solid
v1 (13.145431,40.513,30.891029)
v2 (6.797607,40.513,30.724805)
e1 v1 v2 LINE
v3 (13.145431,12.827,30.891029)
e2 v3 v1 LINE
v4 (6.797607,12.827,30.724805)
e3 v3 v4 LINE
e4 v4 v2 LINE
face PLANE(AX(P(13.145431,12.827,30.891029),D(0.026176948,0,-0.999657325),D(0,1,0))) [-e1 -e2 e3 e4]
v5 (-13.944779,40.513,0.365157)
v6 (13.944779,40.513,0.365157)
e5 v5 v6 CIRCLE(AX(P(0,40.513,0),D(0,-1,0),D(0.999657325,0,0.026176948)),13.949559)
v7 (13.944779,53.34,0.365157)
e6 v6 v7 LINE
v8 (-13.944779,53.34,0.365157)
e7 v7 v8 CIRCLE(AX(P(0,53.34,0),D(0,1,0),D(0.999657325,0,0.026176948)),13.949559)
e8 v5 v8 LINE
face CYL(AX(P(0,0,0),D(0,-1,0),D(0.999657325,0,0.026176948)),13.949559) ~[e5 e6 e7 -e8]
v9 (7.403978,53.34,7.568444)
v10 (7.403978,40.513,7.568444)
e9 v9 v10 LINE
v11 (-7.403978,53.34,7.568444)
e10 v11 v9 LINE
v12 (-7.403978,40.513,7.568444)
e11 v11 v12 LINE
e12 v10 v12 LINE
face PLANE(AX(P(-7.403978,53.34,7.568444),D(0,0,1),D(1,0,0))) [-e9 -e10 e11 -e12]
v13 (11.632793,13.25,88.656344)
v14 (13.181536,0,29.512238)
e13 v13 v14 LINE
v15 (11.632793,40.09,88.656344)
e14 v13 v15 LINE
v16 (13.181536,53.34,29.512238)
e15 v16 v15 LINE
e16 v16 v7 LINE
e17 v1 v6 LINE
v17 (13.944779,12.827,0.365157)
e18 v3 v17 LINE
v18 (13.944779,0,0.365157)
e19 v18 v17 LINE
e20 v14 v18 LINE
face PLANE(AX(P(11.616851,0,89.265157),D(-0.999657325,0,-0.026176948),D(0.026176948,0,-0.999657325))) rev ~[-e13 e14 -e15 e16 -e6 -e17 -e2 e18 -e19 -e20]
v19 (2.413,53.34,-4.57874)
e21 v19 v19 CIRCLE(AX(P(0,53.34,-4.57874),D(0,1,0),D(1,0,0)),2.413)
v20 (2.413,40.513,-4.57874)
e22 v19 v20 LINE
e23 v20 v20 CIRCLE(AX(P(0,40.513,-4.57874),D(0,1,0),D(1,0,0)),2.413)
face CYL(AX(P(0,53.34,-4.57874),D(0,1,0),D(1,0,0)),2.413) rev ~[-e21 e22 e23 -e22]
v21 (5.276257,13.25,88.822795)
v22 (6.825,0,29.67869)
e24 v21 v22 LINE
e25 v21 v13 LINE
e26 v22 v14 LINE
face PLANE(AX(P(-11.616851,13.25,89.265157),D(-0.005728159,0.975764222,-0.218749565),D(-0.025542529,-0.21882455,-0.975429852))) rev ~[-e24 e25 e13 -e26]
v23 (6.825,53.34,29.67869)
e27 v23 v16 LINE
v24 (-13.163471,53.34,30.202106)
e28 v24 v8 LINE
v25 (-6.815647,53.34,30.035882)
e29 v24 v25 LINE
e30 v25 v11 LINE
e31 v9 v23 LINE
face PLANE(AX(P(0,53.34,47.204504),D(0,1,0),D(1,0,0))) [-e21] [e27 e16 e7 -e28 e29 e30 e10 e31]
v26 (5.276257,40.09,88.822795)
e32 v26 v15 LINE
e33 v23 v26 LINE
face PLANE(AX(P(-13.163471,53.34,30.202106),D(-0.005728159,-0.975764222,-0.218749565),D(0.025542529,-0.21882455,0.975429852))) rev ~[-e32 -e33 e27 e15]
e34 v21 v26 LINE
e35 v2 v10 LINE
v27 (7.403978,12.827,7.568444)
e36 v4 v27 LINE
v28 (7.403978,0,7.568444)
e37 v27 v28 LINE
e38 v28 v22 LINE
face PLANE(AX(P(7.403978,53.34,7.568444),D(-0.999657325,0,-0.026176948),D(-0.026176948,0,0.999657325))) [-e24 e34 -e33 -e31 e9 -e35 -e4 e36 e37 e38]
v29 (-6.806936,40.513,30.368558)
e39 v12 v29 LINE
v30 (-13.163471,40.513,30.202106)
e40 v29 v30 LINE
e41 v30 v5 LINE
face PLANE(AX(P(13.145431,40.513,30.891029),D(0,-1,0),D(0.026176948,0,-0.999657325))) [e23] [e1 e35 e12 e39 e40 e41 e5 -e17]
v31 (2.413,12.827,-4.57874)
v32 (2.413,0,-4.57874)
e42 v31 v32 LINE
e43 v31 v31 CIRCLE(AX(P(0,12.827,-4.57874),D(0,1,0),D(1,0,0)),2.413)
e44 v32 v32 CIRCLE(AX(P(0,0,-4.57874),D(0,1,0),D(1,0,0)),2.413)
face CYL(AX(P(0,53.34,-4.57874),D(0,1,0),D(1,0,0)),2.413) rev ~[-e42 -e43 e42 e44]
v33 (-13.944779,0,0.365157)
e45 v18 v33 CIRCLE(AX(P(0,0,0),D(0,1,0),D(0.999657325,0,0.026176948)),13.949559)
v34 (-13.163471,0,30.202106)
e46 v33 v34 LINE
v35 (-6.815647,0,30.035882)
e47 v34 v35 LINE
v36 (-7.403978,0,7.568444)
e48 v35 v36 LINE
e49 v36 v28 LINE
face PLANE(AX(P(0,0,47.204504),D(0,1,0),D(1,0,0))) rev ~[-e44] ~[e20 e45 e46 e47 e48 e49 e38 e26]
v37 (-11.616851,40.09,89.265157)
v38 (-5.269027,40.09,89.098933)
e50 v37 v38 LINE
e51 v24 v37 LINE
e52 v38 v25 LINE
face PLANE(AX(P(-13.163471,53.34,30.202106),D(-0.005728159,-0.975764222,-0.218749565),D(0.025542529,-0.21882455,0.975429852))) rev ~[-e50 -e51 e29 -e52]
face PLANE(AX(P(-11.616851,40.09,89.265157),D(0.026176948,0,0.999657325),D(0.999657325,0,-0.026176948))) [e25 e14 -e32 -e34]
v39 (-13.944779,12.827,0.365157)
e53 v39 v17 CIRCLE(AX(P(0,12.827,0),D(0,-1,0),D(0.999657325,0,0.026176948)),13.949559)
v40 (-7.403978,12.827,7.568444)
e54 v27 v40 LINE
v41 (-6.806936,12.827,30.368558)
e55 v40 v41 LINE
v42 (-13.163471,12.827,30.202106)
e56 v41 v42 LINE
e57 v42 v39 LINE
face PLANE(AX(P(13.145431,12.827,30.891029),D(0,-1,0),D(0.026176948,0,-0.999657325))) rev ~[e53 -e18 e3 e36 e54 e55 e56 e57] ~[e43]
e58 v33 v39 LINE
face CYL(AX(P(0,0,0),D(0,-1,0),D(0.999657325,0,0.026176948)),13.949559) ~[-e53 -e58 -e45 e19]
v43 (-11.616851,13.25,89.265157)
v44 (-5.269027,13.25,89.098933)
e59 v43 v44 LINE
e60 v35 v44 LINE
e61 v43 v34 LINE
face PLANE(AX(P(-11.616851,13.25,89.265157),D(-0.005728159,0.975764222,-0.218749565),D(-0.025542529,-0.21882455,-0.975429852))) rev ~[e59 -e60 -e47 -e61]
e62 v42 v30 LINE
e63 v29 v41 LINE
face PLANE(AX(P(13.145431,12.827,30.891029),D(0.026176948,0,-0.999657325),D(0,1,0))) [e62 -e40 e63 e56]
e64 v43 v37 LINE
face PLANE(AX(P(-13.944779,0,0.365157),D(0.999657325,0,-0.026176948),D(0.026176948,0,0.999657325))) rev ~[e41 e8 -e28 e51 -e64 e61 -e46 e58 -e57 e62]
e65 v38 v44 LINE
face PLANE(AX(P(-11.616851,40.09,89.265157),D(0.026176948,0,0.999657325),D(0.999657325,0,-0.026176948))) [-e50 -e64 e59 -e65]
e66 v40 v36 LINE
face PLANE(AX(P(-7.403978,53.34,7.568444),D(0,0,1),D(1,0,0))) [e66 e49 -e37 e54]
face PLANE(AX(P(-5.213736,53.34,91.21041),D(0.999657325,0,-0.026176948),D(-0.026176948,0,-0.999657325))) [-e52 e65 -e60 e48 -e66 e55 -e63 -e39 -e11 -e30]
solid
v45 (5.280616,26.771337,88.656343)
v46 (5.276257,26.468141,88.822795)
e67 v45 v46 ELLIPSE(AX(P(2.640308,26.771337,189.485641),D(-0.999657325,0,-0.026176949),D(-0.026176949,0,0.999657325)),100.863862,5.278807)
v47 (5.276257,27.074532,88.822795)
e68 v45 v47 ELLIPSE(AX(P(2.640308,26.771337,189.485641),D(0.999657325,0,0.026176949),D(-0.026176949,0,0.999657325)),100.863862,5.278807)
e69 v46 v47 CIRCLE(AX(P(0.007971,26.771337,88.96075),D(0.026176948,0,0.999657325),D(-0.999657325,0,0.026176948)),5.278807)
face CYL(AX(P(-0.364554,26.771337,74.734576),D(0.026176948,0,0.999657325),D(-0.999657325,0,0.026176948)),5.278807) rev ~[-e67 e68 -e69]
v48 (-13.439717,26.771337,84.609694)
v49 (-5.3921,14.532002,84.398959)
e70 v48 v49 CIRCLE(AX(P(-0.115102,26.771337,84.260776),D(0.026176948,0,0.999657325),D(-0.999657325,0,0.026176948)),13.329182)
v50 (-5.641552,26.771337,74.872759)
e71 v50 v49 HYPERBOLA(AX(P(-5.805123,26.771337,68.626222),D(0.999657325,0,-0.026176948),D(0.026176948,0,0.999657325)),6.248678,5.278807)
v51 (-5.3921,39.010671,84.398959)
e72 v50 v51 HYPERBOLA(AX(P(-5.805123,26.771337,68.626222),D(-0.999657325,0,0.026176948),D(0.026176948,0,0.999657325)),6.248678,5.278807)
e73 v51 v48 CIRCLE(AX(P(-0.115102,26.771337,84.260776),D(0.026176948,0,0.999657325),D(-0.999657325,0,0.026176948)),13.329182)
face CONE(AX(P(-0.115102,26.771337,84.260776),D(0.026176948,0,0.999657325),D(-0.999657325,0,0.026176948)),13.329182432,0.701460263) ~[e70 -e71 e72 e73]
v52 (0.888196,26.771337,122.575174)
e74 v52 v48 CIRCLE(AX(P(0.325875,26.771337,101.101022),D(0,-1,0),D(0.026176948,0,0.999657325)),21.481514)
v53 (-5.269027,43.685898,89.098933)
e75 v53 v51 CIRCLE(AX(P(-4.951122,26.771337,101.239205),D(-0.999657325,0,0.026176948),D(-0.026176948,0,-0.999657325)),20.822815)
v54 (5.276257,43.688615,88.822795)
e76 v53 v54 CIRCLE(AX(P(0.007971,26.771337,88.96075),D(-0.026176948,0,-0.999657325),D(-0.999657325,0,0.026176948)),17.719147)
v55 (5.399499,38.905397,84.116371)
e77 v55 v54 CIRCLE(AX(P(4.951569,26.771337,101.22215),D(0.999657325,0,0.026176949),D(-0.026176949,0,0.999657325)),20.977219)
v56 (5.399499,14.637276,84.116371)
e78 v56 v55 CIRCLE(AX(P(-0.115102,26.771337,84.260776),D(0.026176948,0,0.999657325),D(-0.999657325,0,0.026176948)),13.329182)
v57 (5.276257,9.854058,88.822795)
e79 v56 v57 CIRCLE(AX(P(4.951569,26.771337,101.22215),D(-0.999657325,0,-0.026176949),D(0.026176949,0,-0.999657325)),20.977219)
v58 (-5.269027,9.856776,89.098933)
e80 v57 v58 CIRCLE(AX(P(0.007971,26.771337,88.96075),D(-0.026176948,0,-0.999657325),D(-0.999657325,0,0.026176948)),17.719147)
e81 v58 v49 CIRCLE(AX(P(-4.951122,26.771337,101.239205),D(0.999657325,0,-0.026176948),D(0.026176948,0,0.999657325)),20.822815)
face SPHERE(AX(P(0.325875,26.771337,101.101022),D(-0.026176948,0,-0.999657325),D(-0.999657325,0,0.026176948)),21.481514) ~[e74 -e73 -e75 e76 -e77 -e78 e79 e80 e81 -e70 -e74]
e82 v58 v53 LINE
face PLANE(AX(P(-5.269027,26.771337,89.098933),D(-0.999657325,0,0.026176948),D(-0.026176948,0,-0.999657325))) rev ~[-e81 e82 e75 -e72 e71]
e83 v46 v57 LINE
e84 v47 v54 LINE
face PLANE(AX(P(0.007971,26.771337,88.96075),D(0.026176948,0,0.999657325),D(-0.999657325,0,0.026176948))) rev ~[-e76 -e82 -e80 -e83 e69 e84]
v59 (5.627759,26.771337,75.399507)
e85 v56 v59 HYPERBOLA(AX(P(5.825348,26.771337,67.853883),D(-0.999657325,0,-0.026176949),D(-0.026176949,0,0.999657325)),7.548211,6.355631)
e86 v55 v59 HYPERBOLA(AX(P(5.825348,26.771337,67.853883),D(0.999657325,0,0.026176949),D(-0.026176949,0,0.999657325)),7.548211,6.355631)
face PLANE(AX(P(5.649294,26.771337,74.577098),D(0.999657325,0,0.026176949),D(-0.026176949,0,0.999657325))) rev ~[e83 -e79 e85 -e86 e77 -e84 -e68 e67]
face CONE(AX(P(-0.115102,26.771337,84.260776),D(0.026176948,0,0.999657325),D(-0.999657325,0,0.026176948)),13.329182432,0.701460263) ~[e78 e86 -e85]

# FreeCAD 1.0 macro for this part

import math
import FreeCAD as App
import Part
import Sketcher
Q = App.Units.Quantity


def add_polygon(sketch, points):
    """Adds a closed chain of lines whose ends are joined by coincident constraints."""
    first, n = sketch.GeometryCount, len(points)
    for a, b in zip(points, points[1:] + points[:1]):
        sketch.addGeometry(Part.LineSegment(App.Vector(*a, 0), App.Vector(*b, 0)), False)
    for i in range(n):
        sketch.addConstraint(Sketcher.Constraint("Coincident", first + i, 2, first + (i + 1) % n, 1))

doc = App.newDocument("Part")
body = doc.addObject("PartDesign::Body", "Body")

# Sketch on XZ plane
sketch1 = body.newObject("Sketcher::SketchObject", "Sketch")
sketch1.AttachmentSupport = (doc.getObject("XZ_Plane"), [""])
sketch1.MapMode = "FlatFace"
sketch1.addGeometry([
    Part.LineSegment(App.Vector(-14, 0, 0), App.Vector(-12, 89, 0)),
    Part.ArcOfCircle(Part.Circle(App.Vector(0, 96, 0), App.Vector(0, 0, 1), 13), math.radians(-30), math.radians(210)),
    Part.LineSegment(App.Vector(12, 89, 0), App.Vector(14, 0, 0)),
    Part.ArcOfCircle(Part.Circle(App.Vector(0, 0, 0), App.Vector(0, 0, 1), 14), math.radians(178), math.radians(362)),
], False)
sketch1.addConstraint([
    Sketcher.Constraint("Coincident", 0, 2, 1, 2),
    Sketcher.Constraint("Coincident", 1, 1, 2, 1),
    Sketcher.Constraint("Tangent", 2, 2, 3, 2),
    Sketcher.Constraint("Tangent", 3, 1, 0, 1),
    Sketcher.Constraint("Coincident", 3, 3, -1, 1),
    Sketcher.Constraint("Symmetric", 0, 2, 1, 1, -2),
    Sketcher.Constraint("Angle", 0, Q("88.5 deg")),
    Sketcher.Constraint("DistanceY", 2, 2, 1, 1, Q("3.5 in")),
    Sketcher.Constraint("Radius", 3, 13.949559),
    Sketcher.Constraint("Radius", 1, 13.422645),
])
pad1 = body.newObject("PartDesign::Pad", "Pad")
pad1.Profile = sketch1
pad1.Length = Q("2.1 in")
pad1.Reversed = True

# Sketch on an angled plane
sketch2 = body.newObject("Sketcher::SketchObject", "Sketch001")
sketch2.Placement = App.Placement(App.Vector(13.944779, 0, 0.365157), App.Rotation(App.Vector(0.026176948, 0, -0.999657325), App.Vector(0, 1, 0), App.Vector(0.999657325, 0, 0.026176948), "ZXY"))
add_polygon(sketch2, [(-31, 41), (-31, 13), (31, 13), (31, 41)])  # lines 0-3
sketch2.addConstraint([
    Sketcher.Constraint("Vertical", 0),
    Sketcher.Constraint("Horizontal", 1),
    Sketcher.Constraint("Vertical", 2),
    Sketcher.Constraint("Horizontal", 3),
    Sketcher.Constraint("DistanceY", 0, 2, 0, 1, Q("1.09 in")),
    Sketcher.Constraint("DistanceY", -1, 1, 0, 2, Q("0.505 in")),
    Sketcher.Constraint("DistanceX", 1, 1, 1, 2, 61.072672),
    Sketcher.Constraint("DistanceX", 0, 2, -1, 1, 30.536336),
])
pocket1 = body.newObject("PartDesign::Pocket", "Pocket")
pocket1.Profile = sketch2
pocket1.Type = "ThroughAll"

# Sketch on XZ plane
sketch3 = body.newObject("Sketcher::SketchObject", "Sketch002")
sketch3.AttachmentSupport = (doc.getObject("XZ_Plane"), [""])
sketch3.MapMode = "FlatFace"
sketch3.AttachmentOffset = App.Placement(App.Vector(0, 0, -2.1 * 25.4), App.Rotation())
add_polygon(sketch3, [(-29, -29), (-29, 124), (29, 124), (29, -29)])  # lines 0-3
sketch3.addGeometry(Part.LineSegment(App.Vector(-12, 89, 0), App.Vector(-14, 0, 0)), False)  # 4
sketch3.addGeometry(Part.ArcOfCircle(Part.Circle(App.Vector(0, 0, 0), App.Vector(0, 0, 1), 14), math.radians(178), math.radians(362)), False)  # 5
sketch3.addGeometry(Part.LineSegment(App.Vector(14, 0, 0), App.Vector(12, 89, 0)), False)  # 6
sketch3.addGeometry(Part.ArcOfCircle(Part.Circle(App.Vector(0, 96, 0), App.Vector(0, 0, 1), 13), math.radians(-30), math.radians(210)), False)  # 7
sketch3.addGeometry(Part.LineSegment(App.Vector(5, 91, 0), App.Vector(7, 8, 0)), False)  # 8
sketch3.addGeometry(Part.LineSegment(App.Vector(7, 8, 0), App.Vector(-7, 8, 0)), False)  # 9
sketch3.addGeometry(Part.LineSegment(App.Vector(-7, 8, 0), App.Vector(-5, 91, 0)), False)  # 10
sketch3.addGeometry(Part.ArcOfCircle(Part.Circle(App.Vector(0, 97, 0), App.Vector(0, 0, 1), 8), math.radians(-49), math.radians(229)), False)  # 11
sketch3.addConstraint([
    Sketcher.Constraint("Tangent", 4, 2, 5, 1),
    Sketcher.Constraint("Tangent", 5, 2, 6, 1),
    Sketcher.Constraint("Coincident", 6, 2, 7, 1),
    Sketcher.Constraint("Coincident", 7, 2, 4, 1),
    Sketcher.Constraint("Coincident", 8, 2, 9, 1),
    Sketcher.Constraint("Coincident", 9, 2, 10, 1),
    Sketcher.Constraint("Coincident", 10, 2, 11, 2),
    Sketcher.Constraint("Coincident", 11, 1, 8, 1),
    Sketcher.Constraint("Vertical", 0),
    Sketcher.Constraint("Horizontal", 1),
    Sketcher.Constraint("Vertical", 2),
    Sketcher.Constraint("Horizontal", 3),
    Sketcher.Constraint("Horizontal", 9),
    Sketcher.Constraint("Coincident", 5, 3, -1, 1),
    Sketcher.Constraint("Symmetric", 6, 2, 7, 2, -2),
    Sketcher.Constraint("Symmetric", 10, 2, 11, 1, -2),
    Sketcher.Constraint("Parallel", 6, 8),
    Sketcher.Constraint("Parallel", 4, 10),
    Sketcher.Constraint("Angle", 4, Q("-91.5 deg")),
    Sketcher.Constraint("DistanceY", 5, 2, 6, 2, Q("3.5 in")),
    Sketcher.Constraint("Radius", 5, 13.949559),
    Sketcher.Constraint("Radius", 11, 8.026281),
    Sketcher.Constraint("DistanceX", 1, 1, 1, 2, 57.352),
    Sketcher.Constraint("DistanceY", 0, 1, 0, 2, 152.814),
    Sketcher.Constraint("Radius", 7, 13.422645),
    Sketcher.Constraint("DistanceX", 0, 2, -1, 1, 28.676),
    Sketcher.Constraint("DistanceY", -1, 1, 0, 2, 124.138),
    Sketcher.Constraint("DistanceX", 8, 2, 5, 2, 6.540801),
    Sketcher.Constraint("Distance", 8, 83.670638),
    Sketcher.Constraint("DistanceY", -1, 1, 10, 2, 91.21041),
])
pocket2 = body.newObject("PartDesign::Pocket", "Pocket001")
pocket2.Profile = sketch3
pocket2.Type = "ThroughAll"
pocket2.Reversed = True

# Sketch on XZ plane
sketch4 = body.newObject("Sketcher::SketchObject", "Sketch003")
sketch4.AttachmentSupport = (doc.getObject("XZ_Plane"), [""])
sketch4.MapMode = "FlatFace"
sketch4.AttachmentOffset = App.Placement(App.Vector(0, 0, -2.1 * 25.4), App.Rotation())
sketch4.addGeometry(Part.Circle(App.Vector(0, -4.6, 0), App.Vector(0, 0, 1), 2.4), False)
sketch4.addConstraint([
    Sketcher.Constraint("PointOnObject", 0, 3, -2),
    Sketcher.Constraint("Diameter", 0, Q("0.19 in")),
    Sketcher.Constraint("DistanceY", 0, 3, -1, 1, 4.57874),
])
pocket3 = body.newObject("PartDesign::Pocket", "Pocket002")
pocket3.Profile = sketch4
pocket3.Type = "ThroughAll"
pocket3.Reversed = True

# Sketch on an angled plane
sketch5 = body.newObject("Sketcher::SketchObject", "Sketch004")
sketch5.Placement = App.Placement(App.Vector(-13.944779, 0, 0.365157), App.Rotation(App.Vector(0.026176948, 0, 0.999657325), App.Vector(0, 1, 0), App.Vector(-0.999657325, 0, 0.026176948), "ZXY"))
add_polygon(sketch5, [(30, 53), (89, 40), (115, 40), (115, 13), (89, 13), (30, 0), (139, 0), (139, 53)])  # lines 0-7
sketch5.addConstraint([
    Sketcher.Constraint("Horizontal", 1),
    Sketcher.Constraint("Vertical", 2),
    Sketcher.Constraint("Horizontal", 3),
    Sketcher.Constraint("Horizontal", 5),
    Sketcher.Constraint("Vertical", 6),
    Sketcher.Constraint("Horizontal", 7),
    Sketcher.Constraint("PointOnObject", 4, 2, -1),
    Sketcher.Constraint("Vertical", 0, 2, 3, 2),
    Sketcher.Constraint("Vertical", 4, 2, 7, 2),
    Sketcher.Constraint("Equal", 0, 4),
    Sketcher.Constraint("DistanceY", 6, 1, 6, 2, Q("2.1 in")),
    Sketcher.Constraint("Angle", 0, Q("-12.640003 deg")),
    Sketcher.Constraint("DistanceY", 2, 2, 2, 1, 26.84),
    Sketcher.Constraint("DistanceX", 1, 1, 1, 2, 26.26622),
    Sketcher.Constraint("DistanceX", 5, 1, 5, 2, 108.85555),
    Sketcher.Constraint("DistanceX", -1, 1, 0, 2, 88.930474),
])
pocket4 = body.newObject("PartDesign::Pocket", "Pocket003")
pocket4.Profile = sketch5
pocket4.Type = "ThroughAll"
pocket4.Midplane = True

# Sketch on XZ plane
sketch6 = body.newObject("Sketcher::SketchObject", "Sketch005")
sketch6.AttachmentSupport = (doc.getObject("XZ_Plane"), [""])
sketch6.MapMode = "FlatFace"
sketch6.AttachmentOffset = App.Placement(App.Vector(0, 0, -40.09), App.Rotation())
add_polygon(sketch6, [(20, 88), (-12, 89), (-20, 89), (-28, 116), (21, 120)])  # lines 0-4
sketch6.addConstraint([
    Sketcher.Constraint("Horizontal", 1),
    Sketcher.Constraint("Angle", 0, Q("178.5 deg")),
    Sketcher.Constraint("DistanceY", 1, 2, 2, 2, 26.954199),
    Sketcher.Constraint("Distance", 3, 49.031631),
    Sketcher.Constraint("Distance", 4, 31.319361),
    Sketcher.Constraint("DistanceX", 1, 2, 1, 1, 8.849003),
    Sketcher.Constraint("DistanceX", 0, 2, -1, 1, 11.616851),
    Sketcher.Constraint("DistanceX", 2, 2, -1, 1, 27.769339),
    Sketcher.Constraint("DistanceX", -1, 1, 4, 2, 19.748471),
    Sketcher.Constraint("DistanceY", -1, 1, 0, 2, 89.265157),
])
pocket5 = body.newObject("PartDesign::Pocket", "Pocket004")
pocket5.Profile = sketch6
pocket5.Length = 100
pocket5.Reversed = True
body2 = doc.addObject("PartDesign::Body", "Body001")

# Sketch on XZ plane
sketch7 = body2.newObject("Sketcher::SketchObject", "Sketch006")
sketch7.AttachmentSupport = (doc.getObject("XZ_Plane001"), [""])
sketch7.MapMode = "FlatFace"
sketch7.AttachmentOffset = App.Placement(App.Vector(0, 0, -26.771337), App.Rotation())
sketch7.addGeometry([
    Part.LineSegment(App.Vector(0, 89, 0), App.Vector(-5, 89, 0)),  # 0
    Part.LineSegment(App.Vector(-5, 89, 0), App.Vector(-6, 75, 0)),  # 1
    Part.LineSegment(App.Vector(-6, 75, 0), App.Vector(-13, 85, 0)),  # 2
    Part.ArcOfCircle(Part.Circle(App.Vector(0, 101, 0), App.Vector(0, 0, 1), 21), math.radians(89), math.radians(230)),  # 3
    Part.LineSegment(App.Vector(1, 123, 0), App.Vector(0, 89, 0)),  # 4
], False)
sketch7.addGeometry(Part.LineSegment(App.Vector(0, 75, 0), App.Vector(1, 123, 0)), True)  # axis
sketch7.addConstraint([
    Sketcher.Constraint("Coincident", 0, 2, 1, 1),
    Sketcher.Constraint("Coincident", 1, 2, 2, 1),
    Sketcher.Constraint("Coincident", 2, 2, 3, 2),
    Sketcher.Constraint("Coincident", 3, 1, 4, 1),
    Sketcher.Constraint("Coincident", 4, 2, 0, 1),
    Sketcher.Constraint("Coincident", 5, 2, 3, 1),
    Sketcher.Constraint("Perpendicular", 0, 1),
    Sketcher.Constraint("Parallel", 1, 4),
    Sketcher.Constraint("Parallel", 4, 5),
    Sketcher.Constraint("Angle", 0, Q("178.5 deg")),
    Sketcher.Constraint("Radius", 3, 21.481514),
    Sketcher.Constraint("Distance", 5, 47.856998),
    Sketcher.Constraint("DistanceX", 0, 2, 3, 3, 5.594902),
    Sketcher.Constraint("Distance", 1, 14.231051),
    Sketcher.Constraint("DistanceY", -1, 1, 3, 3, 101.101022),
    Sketcher.Constraint("DistanceY", -1, 1, 1, 2, 74.872759),
    Sketcher.Constraint("DistanceX", -1, 1, 4, 2, 0.007971),
    Sketcher.Constraint("DistanceY", -1, 1, 4, 2, 88.96075),
    Sketcher.Constraint("DistanceX", 2, 2, 0, 2, 8.17069),
])
revolution = body2.newObject("PartDesign::Revolution", "Revolution")
revolution.Profile = sketch7
revolution.ReferenceAxis = (sketch7, ["Axis0"])
revolution.Angle = 360

# Sketch on XZ plane
sketch8 = body2.newObject("Sketcher::SketchObject", "Sketch007")
sketch8.AttachmentSupport = (doc.getObject("XZ_Plane001"), [""])
sketch8.MapMode = "FlatFace"
sketch8.AttachmentOffset = App.Placement(App.Vector(0, 0, -26.771337), App.Rotation())
add_polygon(sketch8, [(6, 75), (-6, 75), (-5, 89), (5, 89)])  # lines 0-3
sketch8.addConstraint([
    Sketcher.Constraint("Perpendicular", 0, 1),
    Sketcher.Constraint("Perpendicular", 1, 2),
    Sketcher.Constraint("Angle", 0, Q("178.5 deg")),
    Sketcher.Constraint("Angle", 3, Q("-88.5 deg")),
    Sketcher.Constraint("Distance", 2, 10.548899),
    Sketcher.Constraint("Distance", 1, 14.231051),
    Sketcher.Constraint("DistanceY", -1, 1, 0, 2, 74.872759),
    Sketcher.Constraint("DistanceX", 0, 2, -1, 1, 5.641552),
])
pocket6 = body2.newObject("PartDesign::Pocket", "Pocket005")
pocket6.Profile = sketch8
pocket6.Type = "TwoLengths"
pocket6.Length = 27.568663
pocket6.Length2 = 27.771337

doc.recompute()
